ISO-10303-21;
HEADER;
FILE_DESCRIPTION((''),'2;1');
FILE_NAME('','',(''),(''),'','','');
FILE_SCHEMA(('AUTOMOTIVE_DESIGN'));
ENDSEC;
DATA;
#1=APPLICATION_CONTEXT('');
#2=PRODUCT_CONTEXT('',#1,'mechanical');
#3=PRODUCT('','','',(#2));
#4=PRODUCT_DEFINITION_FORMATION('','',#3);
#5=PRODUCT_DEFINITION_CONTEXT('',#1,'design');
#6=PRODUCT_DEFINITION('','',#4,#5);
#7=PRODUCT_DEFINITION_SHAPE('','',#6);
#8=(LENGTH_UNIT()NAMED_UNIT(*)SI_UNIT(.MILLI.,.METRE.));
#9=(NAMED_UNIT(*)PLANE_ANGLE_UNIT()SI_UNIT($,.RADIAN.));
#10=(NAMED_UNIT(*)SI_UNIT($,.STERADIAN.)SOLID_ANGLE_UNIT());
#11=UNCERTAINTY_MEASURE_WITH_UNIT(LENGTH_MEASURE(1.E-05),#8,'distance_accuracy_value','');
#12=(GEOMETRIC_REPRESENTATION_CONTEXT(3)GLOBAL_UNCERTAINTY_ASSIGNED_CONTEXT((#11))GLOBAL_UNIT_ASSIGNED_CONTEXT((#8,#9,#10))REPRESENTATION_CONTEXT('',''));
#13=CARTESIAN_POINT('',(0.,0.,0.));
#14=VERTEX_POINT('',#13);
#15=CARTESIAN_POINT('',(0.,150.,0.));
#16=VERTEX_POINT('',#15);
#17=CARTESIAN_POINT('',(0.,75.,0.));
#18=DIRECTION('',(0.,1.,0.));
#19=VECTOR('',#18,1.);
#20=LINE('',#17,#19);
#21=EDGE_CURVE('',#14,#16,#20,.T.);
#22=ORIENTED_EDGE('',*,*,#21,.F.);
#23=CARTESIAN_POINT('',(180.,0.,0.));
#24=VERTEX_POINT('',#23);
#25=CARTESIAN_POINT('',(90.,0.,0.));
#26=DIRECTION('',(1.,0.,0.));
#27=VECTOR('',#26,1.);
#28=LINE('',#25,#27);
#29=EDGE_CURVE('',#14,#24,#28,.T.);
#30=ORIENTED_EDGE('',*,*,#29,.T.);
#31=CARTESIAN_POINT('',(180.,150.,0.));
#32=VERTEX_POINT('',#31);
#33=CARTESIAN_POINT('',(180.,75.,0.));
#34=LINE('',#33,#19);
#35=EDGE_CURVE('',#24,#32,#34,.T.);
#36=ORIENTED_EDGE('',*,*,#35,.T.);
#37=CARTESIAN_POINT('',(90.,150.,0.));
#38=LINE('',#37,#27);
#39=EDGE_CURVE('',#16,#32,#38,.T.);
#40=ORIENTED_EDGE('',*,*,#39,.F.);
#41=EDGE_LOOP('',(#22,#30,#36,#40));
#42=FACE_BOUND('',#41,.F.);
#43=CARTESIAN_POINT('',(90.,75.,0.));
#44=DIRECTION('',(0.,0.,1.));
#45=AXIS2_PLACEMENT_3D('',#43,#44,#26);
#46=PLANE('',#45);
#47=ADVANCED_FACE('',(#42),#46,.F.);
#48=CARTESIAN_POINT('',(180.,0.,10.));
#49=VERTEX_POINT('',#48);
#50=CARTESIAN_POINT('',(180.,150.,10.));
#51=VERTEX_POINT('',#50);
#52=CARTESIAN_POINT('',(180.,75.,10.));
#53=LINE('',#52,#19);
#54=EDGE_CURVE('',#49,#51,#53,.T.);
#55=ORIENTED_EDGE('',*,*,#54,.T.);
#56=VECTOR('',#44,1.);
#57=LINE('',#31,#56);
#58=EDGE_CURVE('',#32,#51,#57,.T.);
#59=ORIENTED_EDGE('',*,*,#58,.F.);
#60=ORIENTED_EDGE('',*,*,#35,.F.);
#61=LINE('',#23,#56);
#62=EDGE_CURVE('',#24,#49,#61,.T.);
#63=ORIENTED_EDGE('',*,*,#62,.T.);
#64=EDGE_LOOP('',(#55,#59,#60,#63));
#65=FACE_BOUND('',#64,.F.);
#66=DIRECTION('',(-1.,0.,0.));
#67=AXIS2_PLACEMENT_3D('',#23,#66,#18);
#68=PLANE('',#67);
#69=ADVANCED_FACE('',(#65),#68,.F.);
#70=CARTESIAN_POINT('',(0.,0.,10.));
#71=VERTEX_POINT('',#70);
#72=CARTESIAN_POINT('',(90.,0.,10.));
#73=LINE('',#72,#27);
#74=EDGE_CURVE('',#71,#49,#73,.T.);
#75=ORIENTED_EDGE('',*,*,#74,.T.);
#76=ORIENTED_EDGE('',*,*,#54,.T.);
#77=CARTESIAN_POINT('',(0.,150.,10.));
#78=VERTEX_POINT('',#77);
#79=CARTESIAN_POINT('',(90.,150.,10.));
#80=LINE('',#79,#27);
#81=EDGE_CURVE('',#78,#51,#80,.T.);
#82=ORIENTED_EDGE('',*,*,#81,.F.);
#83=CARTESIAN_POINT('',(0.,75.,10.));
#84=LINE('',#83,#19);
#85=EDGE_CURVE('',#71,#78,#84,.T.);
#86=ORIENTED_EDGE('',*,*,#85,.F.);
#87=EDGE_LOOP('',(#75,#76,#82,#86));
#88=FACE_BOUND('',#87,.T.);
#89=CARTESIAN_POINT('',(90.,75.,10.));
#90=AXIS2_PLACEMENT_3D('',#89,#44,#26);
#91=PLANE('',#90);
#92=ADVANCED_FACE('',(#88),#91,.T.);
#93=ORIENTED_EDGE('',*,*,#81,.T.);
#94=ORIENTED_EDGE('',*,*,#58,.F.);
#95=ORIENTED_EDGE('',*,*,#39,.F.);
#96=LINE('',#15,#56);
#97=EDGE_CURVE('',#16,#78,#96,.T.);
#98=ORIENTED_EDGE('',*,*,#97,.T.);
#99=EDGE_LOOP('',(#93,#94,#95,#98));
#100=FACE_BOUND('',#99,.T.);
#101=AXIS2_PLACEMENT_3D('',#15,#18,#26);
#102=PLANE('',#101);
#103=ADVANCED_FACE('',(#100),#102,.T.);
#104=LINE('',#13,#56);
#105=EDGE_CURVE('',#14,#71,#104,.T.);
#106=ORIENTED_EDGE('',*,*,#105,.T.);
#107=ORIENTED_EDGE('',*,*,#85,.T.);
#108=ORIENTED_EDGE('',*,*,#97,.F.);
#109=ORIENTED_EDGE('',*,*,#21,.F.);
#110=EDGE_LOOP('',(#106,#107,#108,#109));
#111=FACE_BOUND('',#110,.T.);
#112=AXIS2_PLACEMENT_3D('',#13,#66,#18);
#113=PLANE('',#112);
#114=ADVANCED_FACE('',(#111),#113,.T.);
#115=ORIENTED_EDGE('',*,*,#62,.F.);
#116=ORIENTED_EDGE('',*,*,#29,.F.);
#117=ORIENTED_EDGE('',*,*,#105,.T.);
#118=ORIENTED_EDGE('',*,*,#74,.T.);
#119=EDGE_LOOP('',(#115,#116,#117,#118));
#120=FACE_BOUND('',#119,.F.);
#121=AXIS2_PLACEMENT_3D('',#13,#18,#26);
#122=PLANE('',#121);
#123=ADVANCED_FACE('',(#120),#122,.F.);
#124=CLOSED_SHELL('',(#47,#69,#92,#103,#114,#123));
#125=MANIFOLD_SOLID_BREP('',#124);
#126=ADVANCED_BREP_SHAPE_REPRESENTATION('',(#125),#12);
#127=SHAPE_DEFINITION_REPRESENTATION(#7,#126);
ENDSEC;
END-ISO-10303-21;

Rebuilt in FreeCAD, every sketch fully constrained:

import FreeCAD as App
import Part
import Sketcher
from FreeCAD import Vector


def add_polygon(sketch, points):
    """Adds a closed chain of lines whose ends are joined by coincident constraints."""
    first, n = sketch.GeometryCount, len(points)
    for a, b in zip(points, points[1:] + points[:1]):
        sketch.addGeometry(Part.LineSegment(App.Vector(*a, 0), App.Vector(*b, 0)), False)
    for i in range(n):
        sketch.addConstraint(Sketcher.Constraint("Coincident", first + i, 2, first + (i + 1) % n, 1))

doc = App.newDocument("Part")
params = doc.addObject("Spreadsheet::Sheet", "Params")
for row, (alias, value) in enumerate([
    ("sketch1_width", "180 mm"),
    ("sketch1_height", "150 mm"),
    ("pad1_length", "10 mm"),
], start=1):
    params.set(f"A{row}", alias)
    params.set(f"B{row}", "=" + value)
    params.setAlias(f"B{row}", alias)

body = doc.addObject("PartDesign::Body", "Body")

# Sketch on XY plane
sketch1 = body.newObject("Sketcher::SketchObject", "Sketch")
sketch1.AttachmentSupport = (doc.getObject("XY_Plane"), [""])
sketch1.MapMode = "FlatFace"
add_polygon(sketch1, [(0, 150), (0, 0), (180, 0), (180, 150)])  # lines 0-3
sketch1.addConstraint([
    Sketcher.Constraint("Vertical", 0),
    Sketcher.Constraint("Horizontal", 1),
    Sketcher.Constraint("Vertical", 2),
    Sketcher.Constraint("Horizontal", 3),
    Sketcher.Constraint("Coincident", 0, 2, -1, 1),
    Sketcher.Constraint("DistanceX", 1, 1, 1, 2, 180.0),
    Sketcher.Constraint("DistanceY", 0, 2, 0, 1, 150.0),
])
sketch1.setExpression("Constraints[9]", "Params.sketch1_width")
sketch1.setExpression("Constraints[10]", "Params.sketch1_height")
pad1 = body.newObject("PartDesign::Pad", "Pad")
pad1.Profile = sketch1
pad1.setExpression("Length", "Params.pad1_length")

doc.recompute()
